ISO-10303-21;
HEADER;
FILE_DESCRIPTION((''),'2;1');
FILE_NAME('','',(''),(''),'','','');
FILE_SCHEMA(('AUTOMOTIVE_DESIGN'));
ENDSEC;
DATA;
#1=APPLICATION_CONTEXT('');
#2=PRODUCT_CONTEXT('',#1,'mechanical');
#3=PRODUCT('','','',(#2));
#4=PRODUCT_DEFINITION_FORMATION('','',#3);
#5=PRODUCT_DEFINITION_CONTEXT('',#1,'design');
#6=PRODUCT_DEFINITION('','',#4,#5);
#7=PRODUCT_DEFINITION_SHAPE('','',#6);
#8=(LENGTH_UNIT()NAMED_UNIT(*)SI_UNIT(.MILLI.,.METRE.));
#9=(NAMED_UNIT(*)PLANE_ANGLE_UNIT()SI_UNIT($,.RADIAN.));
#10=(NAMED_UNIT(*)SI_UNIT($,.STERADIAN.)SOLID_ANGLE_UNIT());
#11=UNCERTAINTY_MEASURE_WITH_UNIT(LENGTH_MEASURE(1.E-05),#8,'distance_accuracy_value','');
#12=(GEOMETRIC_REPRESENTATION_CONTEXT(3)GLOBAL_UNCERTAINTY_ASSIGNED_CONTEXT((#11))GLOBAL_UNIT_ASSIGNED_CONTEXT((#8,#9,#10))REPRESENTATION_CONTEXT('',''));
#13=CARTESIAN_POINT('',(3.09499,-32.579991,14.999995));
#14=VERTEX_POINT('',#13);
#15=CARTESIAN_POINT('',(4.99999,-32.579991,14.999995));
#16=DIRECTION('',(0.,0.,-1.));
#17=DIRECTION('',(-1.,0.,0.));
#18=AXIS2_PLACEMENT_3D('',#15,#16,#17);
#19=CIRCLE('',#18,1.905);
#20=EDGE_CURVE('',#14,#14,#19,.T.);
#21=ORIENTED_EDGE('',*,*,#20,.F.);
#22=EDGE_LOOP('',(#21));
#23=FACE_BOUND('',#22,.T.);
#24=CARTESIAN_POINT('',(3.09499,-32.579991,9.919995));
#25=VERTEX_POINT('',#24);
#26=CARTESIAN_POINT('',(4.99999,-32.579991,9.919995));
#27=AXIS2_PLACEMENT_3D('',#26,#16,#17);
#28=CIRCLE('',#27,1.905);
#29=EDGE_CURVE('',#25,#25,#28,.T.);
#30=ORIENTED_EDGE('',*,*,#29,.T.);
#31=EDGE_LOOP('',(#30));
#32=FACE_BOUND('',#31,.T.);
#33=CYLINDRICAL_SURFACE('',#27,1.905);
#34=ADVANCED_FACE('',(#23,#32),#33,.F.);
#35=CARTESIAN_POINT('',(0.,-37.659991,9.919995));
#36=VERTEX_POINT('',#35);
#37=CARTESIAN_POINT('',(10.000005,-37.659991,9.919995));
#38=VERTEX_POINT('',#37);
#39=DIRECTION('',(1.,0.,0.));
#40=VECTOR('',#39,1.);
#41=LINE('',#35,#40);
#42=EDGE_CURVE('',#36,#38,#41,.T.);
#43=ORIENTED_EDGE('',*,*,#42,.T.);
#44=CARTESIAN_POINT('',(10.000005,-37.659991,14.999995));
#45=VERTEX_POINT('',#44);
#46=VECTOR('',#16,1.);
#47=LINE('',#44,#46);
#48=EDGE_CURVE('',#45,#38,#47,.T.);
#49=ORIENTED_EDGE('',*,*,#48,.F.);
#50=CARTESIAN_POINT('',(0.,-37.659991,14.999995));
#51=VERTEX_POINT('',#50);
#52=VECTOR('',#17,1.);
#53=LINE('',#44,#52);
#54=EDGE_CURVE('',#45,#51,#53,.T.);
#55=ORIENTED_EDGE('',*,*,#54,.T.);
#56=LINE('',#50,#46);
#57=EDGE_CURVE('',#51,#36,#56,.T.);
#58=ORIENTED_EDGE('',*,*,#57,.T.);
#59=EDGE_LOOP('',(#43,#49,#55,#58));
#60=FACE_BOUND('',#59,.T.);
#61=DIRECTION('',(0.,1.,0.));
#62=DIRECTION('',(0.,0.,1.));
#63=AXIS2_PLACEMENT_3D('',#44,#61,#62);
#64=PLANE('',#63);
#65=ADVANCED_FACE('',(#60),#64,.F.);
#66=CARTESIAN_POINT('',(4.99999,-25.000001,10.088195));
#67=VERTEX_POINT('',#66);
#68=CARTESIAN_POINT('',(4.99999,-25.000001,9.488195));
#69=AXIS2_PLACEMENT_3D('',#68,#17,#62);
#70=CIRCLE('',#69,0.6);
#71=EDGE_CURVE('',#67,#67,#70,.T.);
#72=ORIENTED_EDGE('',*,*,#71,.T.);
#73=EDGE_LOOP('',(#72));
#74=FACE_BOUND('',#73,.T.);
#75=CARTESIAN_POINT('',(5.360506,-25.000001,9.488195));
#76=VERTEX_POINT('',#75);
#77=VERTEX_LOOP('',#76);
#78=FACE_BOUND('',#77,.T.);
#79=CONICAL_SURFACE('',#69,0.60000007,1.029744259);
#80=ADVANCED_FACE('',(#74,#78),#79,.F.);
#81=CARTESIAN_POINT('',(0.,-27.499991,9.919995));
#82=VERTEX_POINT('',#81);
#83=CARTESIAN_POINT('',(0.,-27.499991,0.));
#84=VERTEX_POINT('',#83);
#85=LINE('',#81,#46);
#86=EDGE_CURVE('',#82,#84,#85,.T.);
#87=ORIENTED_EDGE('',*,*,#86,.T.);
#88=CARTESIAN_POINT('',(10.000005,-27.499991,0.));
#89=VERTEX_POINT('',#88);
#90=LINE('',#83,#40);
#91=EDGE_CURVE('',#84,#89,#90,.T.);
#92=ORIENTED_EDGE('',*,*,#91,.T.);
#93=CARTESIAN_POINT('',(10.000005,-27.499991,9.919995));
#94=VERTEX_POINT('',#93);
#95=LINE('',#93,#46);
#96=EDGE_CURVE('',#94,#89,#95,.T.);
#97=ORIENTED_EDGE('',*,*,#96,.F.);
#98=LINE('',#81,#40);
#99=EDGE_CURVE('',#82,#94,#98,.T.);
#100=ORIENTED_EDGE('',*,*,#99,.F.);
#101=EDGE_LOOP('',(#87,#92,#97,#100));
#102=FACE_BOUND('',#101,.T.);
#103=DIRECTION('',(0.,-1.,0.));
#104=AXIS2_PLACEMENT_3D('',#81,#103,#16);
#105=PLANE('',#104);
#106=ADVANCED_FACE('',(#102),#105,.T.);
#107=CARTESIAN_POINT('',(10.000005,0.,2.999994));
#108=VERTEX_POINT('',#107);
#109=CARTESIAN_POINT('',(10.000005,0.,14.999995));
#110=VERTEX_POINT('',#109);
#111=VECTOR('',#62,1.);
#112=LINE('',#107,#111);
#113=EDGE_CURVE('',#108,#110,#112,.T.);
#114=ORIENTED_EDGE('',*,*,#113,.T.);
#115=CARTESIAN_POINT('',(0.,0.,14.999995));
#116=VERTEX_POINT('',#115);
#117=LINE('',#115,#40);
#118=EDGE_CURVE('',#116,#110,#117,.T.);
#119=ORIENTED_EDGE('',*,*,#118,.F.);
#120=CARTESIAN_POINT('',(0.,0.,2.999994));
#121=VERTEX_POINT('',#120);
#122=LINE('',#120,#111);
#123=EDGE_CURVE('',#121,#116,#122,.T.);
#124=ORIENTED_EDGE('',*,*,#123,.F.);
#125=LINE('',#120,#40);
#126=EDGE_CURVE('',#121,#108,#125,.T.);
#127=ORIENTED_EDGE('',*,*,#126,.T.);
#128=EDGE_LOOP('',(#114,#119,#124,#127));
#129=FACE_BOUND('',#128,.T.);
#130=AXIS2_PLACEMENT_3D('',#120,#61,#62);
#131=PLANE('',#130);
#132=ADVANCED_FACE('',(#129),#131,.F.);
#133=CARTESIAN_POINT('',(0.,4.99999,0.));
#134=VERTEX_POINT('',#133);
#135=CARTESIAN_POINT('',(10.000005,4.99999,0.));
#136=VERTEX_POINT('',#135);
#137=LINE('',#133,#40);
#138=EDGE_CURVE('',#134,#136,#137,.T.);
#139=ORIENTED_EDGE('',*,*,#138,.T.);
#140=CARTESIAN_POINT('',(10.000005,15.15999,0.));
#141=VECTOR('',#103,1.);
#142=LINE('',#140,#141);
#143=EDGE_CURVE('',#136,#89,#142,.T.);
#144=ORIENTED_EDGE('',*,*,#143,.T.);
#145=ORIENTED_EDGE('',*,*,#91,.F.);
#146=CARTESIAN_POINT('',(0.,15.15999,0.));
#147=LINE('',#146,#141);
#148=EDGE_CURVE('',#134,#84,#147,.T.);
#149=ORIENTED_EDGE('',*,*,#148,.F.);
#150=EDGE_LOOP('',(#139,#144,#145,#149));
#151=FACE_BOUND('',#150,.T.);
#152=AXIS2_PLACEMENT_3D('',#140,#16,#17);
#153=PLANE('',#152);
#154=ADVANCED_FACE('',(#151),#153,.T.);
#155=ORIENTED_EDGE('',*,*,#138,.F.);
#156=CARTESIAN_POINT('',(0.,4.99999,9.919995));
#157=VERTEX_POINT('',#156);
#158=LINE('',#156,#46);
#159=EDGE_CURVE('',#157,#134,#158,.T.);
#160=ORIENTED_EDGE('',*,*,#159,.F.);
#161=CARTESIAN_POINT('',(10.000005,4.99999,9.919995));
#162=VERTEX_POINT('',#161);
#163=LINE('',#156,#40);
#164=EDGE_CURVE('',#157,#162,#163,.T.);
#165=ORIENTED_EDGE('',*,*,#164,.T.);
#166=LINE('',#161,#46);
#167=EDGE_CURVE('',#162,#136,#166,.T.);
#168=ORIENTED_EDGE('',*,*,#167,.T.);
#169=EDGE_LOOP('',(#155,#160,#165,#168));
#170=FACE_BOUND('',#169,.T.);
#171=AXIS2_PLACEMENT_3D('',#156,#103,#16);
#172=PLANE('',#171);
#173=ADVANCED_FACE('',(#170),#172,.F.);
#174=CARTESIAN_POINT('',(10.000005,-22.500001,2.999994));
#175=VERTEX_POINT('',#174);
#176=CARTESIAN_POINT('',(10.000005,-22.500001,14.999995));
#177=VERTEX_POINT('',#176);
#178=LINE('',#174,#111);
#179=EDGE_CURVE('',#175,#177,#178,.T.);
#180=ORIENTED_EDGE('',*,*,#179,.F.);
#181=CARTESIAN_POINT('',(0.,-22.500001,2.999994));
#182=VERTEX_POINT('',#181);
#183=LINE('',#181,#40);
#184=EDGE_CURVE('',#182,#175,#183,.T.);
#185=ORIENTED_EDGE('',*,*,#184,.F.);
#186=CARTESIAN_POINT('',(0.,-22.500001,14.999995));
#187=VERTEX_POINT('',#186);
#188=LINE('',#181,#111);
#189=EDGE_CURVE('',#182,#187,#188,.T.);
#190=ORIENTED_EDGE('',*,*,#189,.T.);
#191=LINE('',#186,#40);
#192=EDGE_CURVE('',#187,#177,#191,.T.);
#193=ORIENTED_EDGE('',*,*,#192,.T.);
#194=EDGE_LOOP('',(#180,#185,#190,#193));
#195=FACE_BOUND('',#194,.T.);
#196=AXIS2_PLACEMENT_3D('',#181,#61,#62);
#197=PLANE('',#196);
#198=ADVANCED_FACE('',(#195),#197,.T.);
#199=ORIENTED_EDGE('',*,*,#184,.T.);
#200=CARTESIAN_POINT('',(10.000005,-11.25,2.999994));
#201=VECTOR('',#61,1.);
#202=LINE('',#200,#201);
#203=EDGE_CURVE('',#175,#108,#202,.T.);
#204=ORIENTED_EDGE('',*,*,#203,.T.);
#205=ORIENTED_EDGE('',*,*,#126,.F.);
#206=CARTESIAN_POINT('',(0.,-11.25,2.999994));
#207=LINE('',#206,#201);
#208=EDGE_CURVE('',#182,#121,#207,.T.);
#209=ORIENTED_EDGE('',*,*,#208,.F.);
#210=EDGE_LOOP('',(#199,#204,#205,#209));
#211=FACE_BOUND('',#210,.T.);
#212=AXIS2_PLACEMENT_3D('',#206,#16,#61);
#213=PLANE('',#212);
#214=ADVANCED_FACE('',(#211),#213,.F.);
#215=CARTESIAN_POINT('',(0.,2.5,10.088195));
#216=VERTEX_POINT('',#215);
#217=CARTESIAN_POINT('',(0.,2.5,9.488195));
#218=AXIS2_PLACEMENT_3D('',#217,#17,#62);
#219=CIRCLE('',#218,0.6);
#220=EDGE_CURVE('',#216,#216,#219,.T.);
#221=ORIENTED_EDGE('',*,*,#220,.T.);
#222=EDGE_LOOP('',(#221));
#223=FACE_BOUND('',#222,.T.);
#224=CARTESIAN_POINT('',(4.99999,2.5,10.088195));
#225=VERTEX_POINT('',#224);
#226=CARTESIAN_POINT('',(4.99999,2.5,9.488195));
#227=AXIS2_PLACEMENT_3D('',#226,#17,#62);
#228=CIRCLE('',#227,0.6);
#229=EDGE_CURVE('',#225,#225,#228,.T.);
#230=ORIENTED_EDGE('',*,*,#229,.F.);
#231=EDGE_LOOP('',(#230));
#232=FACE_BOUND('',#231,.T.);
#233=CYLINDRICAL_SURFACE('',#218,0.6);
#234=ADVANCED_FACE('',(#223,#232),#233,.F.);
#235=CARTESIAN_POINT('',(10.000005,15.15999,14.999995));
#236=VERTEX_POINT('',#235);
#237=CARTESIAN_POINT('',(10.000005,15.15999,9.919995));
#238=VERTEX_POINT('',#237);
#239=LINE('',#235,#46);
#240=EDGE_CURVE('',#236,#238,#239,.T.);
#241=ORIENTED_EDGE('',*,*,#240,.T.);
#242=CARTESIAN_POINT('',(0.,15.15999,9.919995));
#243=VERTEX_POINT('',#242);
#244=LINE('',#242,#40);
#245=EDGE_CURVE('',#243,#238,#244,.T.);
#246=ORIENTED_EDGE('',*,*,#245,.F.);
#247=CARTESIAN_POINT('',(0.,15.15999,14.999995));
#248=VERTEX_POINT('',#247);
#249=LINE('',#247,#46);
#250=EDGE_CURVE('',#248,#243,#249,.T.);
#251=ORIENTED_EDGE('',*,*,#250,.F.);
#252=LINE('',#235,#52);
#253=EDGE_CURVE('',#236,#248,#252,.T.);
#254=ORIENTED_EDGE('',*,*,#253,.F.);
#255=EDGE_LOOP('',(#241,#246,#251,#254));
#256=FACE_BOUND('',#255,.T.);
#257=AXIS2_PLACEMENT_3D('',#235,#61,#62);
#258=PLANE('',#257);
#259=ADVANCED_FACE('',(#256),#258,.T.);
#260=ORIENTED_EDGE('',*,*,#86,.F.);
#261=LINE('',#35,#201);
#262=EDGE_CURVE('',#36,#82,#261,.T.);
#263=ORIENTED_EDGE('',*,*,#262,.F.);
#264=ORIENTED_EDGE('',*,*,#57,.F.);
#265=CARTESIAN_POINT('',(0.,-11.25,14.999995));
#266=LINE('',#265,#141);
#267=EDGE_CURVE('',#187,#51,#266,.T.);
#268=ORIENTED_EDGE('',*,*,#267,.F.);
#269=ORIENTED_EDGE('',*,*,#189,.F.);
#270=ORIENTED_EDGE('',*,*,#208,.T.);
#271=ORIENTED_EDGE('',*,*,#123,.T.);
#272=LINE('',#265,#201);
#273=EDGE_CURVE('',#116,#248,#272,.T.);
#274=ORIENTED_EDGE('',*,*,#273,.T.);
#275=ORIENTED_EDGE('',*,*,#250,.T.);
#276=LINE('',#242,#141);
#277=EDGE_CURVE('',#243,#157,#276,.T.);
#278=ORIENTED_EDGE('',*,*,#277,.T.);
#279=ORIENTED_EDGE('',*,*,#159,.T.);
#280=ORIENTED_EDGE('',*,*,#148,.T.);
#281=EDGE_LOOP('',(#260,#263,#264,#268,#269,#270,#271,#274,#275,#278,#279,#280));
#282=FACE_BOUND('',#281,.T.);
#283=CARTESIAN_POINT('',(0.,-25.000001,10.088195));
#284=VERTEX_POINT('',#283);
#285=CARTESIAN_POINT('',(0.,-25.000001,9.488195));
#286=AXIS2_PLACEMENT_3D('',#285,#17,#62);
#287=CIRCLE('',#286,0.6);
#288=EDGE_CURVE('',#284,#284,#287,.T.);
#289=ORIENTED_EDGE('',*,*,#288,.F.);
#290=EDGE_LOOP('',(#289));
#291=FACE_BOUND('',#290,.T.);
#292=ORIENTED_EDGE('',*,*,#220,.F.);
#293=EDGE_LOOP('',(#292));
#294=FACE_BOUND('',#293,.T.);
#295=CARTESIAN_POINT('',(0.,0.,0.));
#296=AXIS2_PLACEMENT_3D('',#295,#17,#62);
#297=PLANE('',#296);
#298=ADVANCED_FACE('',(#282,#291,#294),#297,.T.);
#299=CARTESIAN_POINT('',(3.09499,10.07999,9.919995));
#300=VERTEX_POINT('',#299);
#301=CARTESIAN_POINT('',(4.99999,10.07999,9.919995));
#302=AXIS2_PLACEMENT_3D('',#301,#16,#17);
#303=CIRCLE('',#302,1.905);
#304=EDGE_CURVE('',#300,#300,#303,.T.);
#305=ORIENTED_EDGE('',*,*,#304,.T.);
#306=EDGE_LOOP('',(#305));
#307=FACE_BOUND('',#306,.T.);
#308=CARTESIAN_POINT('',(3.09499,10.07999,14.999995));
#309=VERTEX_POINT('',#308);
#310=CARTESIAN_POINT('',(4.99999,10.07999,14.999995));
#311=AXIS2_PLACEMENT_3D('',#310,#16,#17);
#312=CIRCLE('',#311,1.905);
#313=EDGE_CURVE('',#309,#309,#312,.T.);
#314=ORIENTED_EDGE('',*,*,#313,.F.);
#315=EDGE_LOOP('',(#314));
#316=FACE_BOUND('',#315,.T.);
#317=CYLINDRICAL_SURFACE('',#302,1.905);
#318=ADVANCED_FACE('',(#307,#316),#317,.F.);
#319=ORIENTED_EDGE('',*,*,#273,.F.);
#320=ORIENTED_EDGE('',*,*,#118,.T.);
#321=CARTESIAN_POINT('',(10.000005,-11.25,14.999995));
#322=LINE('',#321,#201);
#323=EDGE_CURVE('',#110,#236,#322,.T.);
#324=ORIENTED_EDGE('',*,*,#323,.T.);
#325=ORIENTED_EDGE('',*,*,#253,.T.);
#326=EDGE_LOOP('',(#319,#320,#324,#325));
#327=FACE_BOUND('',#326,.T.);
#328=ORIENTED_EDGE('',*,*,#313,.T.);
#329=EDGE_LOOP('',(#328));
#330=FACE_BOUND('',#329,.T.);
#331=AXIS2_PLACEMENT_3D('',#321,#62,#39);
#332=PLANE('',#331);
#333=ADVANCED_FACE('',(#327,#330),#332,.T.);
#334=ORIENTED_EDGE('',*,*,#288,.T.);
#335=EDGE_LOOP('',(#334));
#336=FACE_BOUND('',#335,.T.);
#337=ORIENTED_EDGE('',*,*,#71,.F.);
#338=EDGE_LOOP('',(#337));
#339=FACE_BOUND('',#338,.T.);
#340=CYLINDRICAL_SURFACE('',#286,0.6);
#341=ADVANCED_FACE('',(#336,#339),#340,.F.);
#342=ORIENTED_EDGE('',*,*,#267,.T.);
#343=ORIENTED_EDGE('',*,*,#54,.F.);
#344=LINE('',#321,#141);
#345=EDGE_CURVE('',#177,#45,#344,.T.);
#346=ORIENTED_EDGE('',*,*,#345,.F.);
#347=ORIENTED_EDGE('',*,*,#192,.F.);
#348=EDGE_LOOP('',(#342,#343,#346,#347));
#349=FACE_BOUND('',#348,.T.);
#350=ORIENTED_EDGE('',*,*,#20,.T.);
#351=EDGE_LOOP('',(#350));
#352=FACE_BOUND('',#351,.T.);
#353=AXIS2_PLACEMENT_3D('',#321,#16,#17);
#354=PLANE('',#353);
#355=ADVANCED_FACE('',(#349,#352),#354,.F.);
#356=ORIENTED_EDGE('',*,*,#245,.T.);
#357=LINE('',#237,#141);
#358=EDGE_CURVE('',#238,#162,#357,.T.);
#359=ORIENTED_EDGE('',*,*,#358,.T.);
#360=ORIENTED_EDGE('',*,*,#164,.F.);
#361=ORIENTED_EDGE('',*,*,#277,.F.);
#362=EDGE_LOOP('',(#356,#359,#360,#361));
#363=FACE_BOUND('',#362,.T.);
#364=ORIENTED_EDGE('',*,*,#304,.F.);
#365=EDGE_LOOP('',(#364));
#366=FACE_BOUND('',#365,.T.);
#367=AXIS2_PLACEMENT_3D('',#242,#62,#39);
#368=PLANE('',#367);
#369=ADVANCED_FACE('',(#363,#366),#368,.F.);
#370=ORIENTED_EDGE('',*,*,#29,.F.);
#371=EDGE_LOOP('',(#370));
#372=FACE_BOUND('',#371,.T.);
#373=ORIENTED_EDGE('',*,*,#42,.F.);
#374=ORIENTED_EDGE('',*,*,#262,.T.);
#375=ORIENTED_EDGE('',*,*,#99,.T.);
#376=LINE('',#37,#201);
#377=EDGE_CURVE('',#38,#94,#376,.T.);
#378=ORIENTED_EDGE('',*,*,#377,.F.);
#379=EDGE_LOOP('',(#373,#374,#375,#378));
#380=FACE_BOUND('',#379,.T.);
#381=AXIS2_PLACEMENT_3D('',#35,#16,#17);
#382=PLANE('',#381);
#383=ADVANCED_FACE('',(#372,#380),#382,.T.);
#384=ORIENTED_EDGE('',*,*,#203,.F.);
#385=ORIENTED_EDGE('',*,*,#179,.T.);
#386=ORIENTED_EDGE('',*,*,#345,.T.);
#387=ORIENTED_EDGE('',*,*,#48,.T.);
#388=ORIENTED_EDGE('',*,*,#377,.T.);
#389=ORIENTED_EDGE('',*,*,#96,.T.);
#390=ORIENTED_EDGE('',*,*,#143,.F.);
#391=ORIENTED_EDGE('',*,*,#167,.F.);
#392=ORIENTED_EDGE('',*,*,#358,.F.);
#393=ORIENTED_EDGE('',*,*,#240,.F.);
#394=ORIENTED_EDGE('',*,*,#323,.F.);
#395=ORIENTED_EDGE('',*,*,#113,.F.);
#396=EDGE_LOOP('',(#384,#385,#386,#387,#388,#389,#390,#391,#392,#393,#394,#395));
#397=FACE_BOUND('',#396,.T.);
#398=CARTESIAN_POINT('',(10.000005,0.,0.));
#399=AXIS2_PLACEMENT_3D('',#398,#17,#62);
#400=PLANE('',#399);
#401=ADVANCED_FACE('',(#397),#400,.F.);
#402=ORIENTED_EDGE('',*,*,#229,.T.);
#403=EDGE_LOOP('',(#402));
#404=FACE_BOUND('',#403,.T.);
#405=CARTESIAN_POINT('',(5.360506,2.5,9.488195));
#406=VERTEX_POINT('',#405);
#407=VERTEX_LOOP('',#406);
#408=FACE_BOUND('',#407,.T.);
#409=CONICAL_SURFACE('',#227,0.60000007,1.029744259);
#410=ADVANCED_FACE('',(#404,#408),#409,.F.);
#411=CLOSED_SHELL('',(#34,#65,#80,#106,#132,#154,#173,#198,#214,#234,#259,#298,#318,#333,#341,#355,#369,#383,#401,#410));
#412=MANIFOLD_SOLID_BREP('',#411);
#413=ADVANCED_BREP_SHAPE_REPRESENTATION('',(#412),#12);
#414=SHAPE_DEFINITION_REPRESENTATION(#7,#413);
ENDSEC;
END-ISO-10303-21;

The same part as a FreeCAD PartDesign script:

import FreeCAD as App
import Part
import Sketcher

V = App.Vector
Q = App.Units.Quantity

doc = App.newDocument("Part")
params = doc.addObject("Spreadsheet::Sheet", "Params")
for row, (alias, value) in enumerate([
    ("pad1_length", "10.000005 mm"),
    ("sketch3_width", "0.4 in"),
    ("sketch4_diameter", "0.15 in"),
    ("hole_diameter", "0.15 in"),
    ("hole_depth", "0.2 in"),
    ("groove_angle", "360 deg"),
], start=1):
    params.set(f"A{row}", alias)
    params.set(f"B{row}", "=" + value)
    params.setAlias(f"B{row}", alias)

body = doc.addObject("PartDesign::Body", "Body")

sketch1 = doc.addObject("Sketcher::SketchObject", "Sketch")
body.addObject(sketch1)
sketch1.AttachmentSupport = (doc.YZ_Plane, [""])
sketch1.MapMode = "FlatFace"
sketch1.addGeometry([
    Part.LineSegment(V(15, 15, 0), V(15, 0, 0)),
    Part.LineSegment(V(15, 0, 0), V(-11, 0, 0)),
    Part.LineSegment(V(-11, 0, 0), V(-11, 15, 0)),
    Part.LineSegment(V(-11, 15, 0), V(15, 15, 0)),
], False)
sketch1.addConstraint([
    Sketcher.Constraint("Coincident", 0, 2, 1, 1),
    Sketcher.Constraint("Coincident", 1, 2, 2, 1),
    Sketcher.Constraint("Coincident", 2, 2, 3, 1),
    Sketcher.Constraint("Coincident", 3, 2, 0, 1),
    Sketcher.Constraint("Vertical", 0),
    Sketcher.Constraint("Horizontal", 1),
    Sketcher.Constraint("Vertical", 2),
    Sketcher.Constraint("Horizontal", 3),
    Sketcher.Constraint("PointOnObject", 0, 2, -1),
    Sketcher.Constraint("DistanceX", 1, 2, 1, 1, Q("26.40999 mm")),
    Sketcher.Constraint("DistanceX", 1, 2, -1, 1, Q("11.25 mm")),
    Sketcher.Constraint("DistanceY", 0, 2, 0, 1, Q("14.999995 mm")),
])
pad1 = doc.addObject("PartDesign::Pad", "Pad")
body.addObject(pad1)
pad1.Profile = sketch1
pad1.setExpression("Length", "Params.pad1_length")

sketch2 = doc.addObject("Sketcher::SketchObject", "Sketch001")
body.addObject(sketch2)
sketch2.AttachmentSupport = (doc.YZ_Plane, [""])
sketch2.MapMode = "FlatFace"
sketch2.AttachmentOffset = App.Placement(V(0, 0, 10.000005), App.Rotation())
sketch2.addGeometry([
    Part.LineSegment(V(0, 15, 0), V(-11, 15, 0)),
    Part.LineSegment(V(-11, 15, 0), V(-11, 3, 0)),
    Part.LineSegment(V(-11, 3, 0), V(0, 3, 0)),
    Part.LineSegment(V(0, 3, 0), V(0, 15, 0)),
], False)
sketch2.addConstraint([
    Sketcher.Constraint("Coincident", 0, 2, 1, 1),
    Sketcher.Constraint("Coincident", 1, 2, 2, 1),
    Sketcher.Constraint("Coincident", 2, 2, 3, 1),
    Sketcher.Constraint("Coincident", 3, 2, 0, 1),
    Sketcher.Constraint("Horizontal", 0),
    Sketcher.Constraint("Vertical", 1),
    Sketcher.Constraint("Horizontal", 2),
    Sketcher.Constraint("Vertical", 3),
    Sketcher.Constraint("PointOnObject", 2, 2, -2),
    Sketcher.Constraint("DistanceX", 0, 2, 0, 1, Q("11.25 mm")),
    Sketcher.Constraint("DistanceY", 1, 2, 1, 1, Q("12.000001 mm")),
    Sketcher.Constraint("DistanceY", -1, 1, 0, 2, Q("14.999995 mm")),
])
pocket1 = doc.addObject("PartDesign::Pocket", "Pocket")
body.addObject(pocket1)
pocket1.Profile = sketch2
pocket1.Type = "ThroughAll"

sketch3 = doc.addObject("Sketcher::SketchObject", "Sketch002")
body.addObject(sketch3)
sketch3.AttachmentSupport = (doc.YZ_Plane, [""])
sketch3.MapMode = "FlatFace"
sketch3.AttachmentOffset = App.Placement(V(0, 0, 10.000005), App.Rotation())
sketch3.addGeometry([
    Part.LineSegment(V(15, 10, 0), V(5, 10, 0)),
    Part.LineSegment(V(5, 10, 0), V(5, 0, 0)),
    Part.LineSegment(V(5, 0, 0), V(15, 0, 0)),
    Part.LineSegment(V(15, 0, 0), V(15, 10, 0)),
], False)
sketch3.addConstraint([
    Sketcher.Constraint("Coincident", 0, 2, 1, 1),
    Sketcher.Constraint("Coincident", 1, 2, 2, 1),
    Sketcher.Constraint("Coincident", 2, 2, 3, 1),
    Sketcher.Constraint("Coincident", 3, 2, 0, 1),
    Sketcher.Constraint("Horizontal", 0),
    Sketcher.Constraint("Vertical", 1),
    Sketcher.Constraint("Horizontal", 2),
    Sketcher.Constraint("Vertical", 3),
    Sketcher.Constraint("PointOnObject", 1, 2, -1),
    Sketcher.Constraint("DistanceX", 0, 2, 0, 1, Q("0.4 in")),
    Sketcher.Constraint("DistanceY", 1, 2, 1, 1, Q("9.919995 mm")),
    Sketcher.Constraint("DistanceX", -1, 1, 0, 2, Q("4.99999 mm")),
])
sketch3.setExpression("Constraints[9]", "Params.sketch3_width")
pocket2 = doc.addObject("PartDesign::Pocket", "Pocket001")
body.addObject(pocket2)
pocket2.Profile = sketch3
pocket2.Type = "ThroughAll"

sketch4 = doc.addObject("Sketcher::SketchObject", "Sketch003")
body.addObject(sketch4)
sketch4.AttachmentSupport = (doc.XY_Plane, [""])
sketch4.MapMode = "FlatFace"
sketch4.AttachmentOffset = App.Placement(V(0, 0, 9.919995), App.Rotation())
sketch4.addGeometry(Part.Circle(V(5, 10.1, 0), V(0, 0, 1), 1.9), False)
sketch4.addConstraint([
    Sketcher.Constraint("Diameter", 0, Q("0.15 in")),
    Sketcher.Constraint("DistanceX", -1, 1, 0, 3, Q("4.99999 mm")),
    Sketcher.Constraint("DistanceY", -1, 1, 0, 3, Q("10.07999 mm")),
])
sketch4.setExpression("Constraints[0]", "Params.sketch4_diameter")
doc.recompute()
hole = doc.addObject("PartDesign::Hole", "Hole")
body.addObject(hole)
hole.Profile = sketch4
hole.ThreadType = "None"
hole.setExpression("Diameter", "Params.hole_diameter")
hole.DepthType = "Dimension"
hole.setExpression("Depth", "Params.hole_depth")
hole.DrillPoint = "Flat"
hole.Reversed = True

sketch5 = doc.addObject("Sketcher::SketchObject", "Sketch004")
body.addObject(sketch5)
sketch5.AttachmentSupport = (doc.XZ_Plane, [""])
sketch5.MapMode = "FlatFace"
sketch5.AttachmentOffset = App.Placement(V(0, 0, -2.5), App.Rotation())
sketch5.addGeometry([
    Part.LineSegment(V(5.4, 9.5, 0), V(0, 9.5, 0)),
    Part.LineSegment(V(0, 9.5, 0), V(0, 10.1, 0)),
    Part.LineSegment(V(0, 10.1, 0), V(5, 10.1, 0)),
    Part.LineSegment(V(5, 10.1, 0), V(5.4, 9.5, 0)),
], False)
sketch5.addGeometry(Part.LineSegment(V(0, 9.5, 0), V(5.4, 9.5, 0)), True)
sketch5.addConstraint([
    Sketcher.Constraint("Coincident", 0, 2, 1, 1),
    Sketcher.Constraint("Coincident", 1, 2, 2, 1),
    Sketcher.Constraint("Coincident", 2, 2, 3, 1),
    Sketcher.Constraint("Coincident", 3, 2, 0, 1),
    Sketcher.Constraint("Horizontal", 0),
    Sketcher.Constraint("Vertical", 1),
    Sketcher.Constraint("Horizontal", 2),
    Sketcher.Constraint("Horizontal", 4),
    Sketcher.Constraint("Coincident", 4, 1, 0, 2),
    Sketcher.Constraint("PointOnObject", 0, 2, -2),
    Sketcher.Constraint("Equal", 0, 4),
    Sketcher.Constraint("Angle", 3, Q("-59 deg")),
    Sketcher.Constraint("DistanceY", 1, 1, 1, 2, Q("0.6 mm")),
    Sketcher.Constraint("DistanceX", 2, 1, 2, 2, Q("4.99999 mm")),
    Sketcher.Constraint("DistanceY", -1, 1, 0, 2, Q("9.488195 mm")),
])
groove = doc.addObject("PartDesign::Groove", "Groove")
body.addObject(groove)
groove.Profile = sketch5
groove.ReferenceAxis = (sketch5, ["Axis0"])
groove.setExpression("Angle", "Params.groove_angle")
doc.recompute()

datumplane = doc.addObject("PartDesign::Plane", "DatumPlane")
body.addObject(datumplane)
datumplane.AttachmentSupport = (doc.XZ_Plane, [""])
datumplane.MapMode = "FlatFace"
datumplane.AttachmentOffset = App.Placement(V(0, 0, 11.25), App.Rotation())
mirrored = doc.addObject("PartDesign::Mirrored", "Mirrored")
body.addObject(mirrored)
mirrored.Originals = [pad1, pocket1, pocket2, hole, groove]
mirrored.MirrorPlane = (datumplane, [""])
body.Tip = mirrored

doc.recompute()
